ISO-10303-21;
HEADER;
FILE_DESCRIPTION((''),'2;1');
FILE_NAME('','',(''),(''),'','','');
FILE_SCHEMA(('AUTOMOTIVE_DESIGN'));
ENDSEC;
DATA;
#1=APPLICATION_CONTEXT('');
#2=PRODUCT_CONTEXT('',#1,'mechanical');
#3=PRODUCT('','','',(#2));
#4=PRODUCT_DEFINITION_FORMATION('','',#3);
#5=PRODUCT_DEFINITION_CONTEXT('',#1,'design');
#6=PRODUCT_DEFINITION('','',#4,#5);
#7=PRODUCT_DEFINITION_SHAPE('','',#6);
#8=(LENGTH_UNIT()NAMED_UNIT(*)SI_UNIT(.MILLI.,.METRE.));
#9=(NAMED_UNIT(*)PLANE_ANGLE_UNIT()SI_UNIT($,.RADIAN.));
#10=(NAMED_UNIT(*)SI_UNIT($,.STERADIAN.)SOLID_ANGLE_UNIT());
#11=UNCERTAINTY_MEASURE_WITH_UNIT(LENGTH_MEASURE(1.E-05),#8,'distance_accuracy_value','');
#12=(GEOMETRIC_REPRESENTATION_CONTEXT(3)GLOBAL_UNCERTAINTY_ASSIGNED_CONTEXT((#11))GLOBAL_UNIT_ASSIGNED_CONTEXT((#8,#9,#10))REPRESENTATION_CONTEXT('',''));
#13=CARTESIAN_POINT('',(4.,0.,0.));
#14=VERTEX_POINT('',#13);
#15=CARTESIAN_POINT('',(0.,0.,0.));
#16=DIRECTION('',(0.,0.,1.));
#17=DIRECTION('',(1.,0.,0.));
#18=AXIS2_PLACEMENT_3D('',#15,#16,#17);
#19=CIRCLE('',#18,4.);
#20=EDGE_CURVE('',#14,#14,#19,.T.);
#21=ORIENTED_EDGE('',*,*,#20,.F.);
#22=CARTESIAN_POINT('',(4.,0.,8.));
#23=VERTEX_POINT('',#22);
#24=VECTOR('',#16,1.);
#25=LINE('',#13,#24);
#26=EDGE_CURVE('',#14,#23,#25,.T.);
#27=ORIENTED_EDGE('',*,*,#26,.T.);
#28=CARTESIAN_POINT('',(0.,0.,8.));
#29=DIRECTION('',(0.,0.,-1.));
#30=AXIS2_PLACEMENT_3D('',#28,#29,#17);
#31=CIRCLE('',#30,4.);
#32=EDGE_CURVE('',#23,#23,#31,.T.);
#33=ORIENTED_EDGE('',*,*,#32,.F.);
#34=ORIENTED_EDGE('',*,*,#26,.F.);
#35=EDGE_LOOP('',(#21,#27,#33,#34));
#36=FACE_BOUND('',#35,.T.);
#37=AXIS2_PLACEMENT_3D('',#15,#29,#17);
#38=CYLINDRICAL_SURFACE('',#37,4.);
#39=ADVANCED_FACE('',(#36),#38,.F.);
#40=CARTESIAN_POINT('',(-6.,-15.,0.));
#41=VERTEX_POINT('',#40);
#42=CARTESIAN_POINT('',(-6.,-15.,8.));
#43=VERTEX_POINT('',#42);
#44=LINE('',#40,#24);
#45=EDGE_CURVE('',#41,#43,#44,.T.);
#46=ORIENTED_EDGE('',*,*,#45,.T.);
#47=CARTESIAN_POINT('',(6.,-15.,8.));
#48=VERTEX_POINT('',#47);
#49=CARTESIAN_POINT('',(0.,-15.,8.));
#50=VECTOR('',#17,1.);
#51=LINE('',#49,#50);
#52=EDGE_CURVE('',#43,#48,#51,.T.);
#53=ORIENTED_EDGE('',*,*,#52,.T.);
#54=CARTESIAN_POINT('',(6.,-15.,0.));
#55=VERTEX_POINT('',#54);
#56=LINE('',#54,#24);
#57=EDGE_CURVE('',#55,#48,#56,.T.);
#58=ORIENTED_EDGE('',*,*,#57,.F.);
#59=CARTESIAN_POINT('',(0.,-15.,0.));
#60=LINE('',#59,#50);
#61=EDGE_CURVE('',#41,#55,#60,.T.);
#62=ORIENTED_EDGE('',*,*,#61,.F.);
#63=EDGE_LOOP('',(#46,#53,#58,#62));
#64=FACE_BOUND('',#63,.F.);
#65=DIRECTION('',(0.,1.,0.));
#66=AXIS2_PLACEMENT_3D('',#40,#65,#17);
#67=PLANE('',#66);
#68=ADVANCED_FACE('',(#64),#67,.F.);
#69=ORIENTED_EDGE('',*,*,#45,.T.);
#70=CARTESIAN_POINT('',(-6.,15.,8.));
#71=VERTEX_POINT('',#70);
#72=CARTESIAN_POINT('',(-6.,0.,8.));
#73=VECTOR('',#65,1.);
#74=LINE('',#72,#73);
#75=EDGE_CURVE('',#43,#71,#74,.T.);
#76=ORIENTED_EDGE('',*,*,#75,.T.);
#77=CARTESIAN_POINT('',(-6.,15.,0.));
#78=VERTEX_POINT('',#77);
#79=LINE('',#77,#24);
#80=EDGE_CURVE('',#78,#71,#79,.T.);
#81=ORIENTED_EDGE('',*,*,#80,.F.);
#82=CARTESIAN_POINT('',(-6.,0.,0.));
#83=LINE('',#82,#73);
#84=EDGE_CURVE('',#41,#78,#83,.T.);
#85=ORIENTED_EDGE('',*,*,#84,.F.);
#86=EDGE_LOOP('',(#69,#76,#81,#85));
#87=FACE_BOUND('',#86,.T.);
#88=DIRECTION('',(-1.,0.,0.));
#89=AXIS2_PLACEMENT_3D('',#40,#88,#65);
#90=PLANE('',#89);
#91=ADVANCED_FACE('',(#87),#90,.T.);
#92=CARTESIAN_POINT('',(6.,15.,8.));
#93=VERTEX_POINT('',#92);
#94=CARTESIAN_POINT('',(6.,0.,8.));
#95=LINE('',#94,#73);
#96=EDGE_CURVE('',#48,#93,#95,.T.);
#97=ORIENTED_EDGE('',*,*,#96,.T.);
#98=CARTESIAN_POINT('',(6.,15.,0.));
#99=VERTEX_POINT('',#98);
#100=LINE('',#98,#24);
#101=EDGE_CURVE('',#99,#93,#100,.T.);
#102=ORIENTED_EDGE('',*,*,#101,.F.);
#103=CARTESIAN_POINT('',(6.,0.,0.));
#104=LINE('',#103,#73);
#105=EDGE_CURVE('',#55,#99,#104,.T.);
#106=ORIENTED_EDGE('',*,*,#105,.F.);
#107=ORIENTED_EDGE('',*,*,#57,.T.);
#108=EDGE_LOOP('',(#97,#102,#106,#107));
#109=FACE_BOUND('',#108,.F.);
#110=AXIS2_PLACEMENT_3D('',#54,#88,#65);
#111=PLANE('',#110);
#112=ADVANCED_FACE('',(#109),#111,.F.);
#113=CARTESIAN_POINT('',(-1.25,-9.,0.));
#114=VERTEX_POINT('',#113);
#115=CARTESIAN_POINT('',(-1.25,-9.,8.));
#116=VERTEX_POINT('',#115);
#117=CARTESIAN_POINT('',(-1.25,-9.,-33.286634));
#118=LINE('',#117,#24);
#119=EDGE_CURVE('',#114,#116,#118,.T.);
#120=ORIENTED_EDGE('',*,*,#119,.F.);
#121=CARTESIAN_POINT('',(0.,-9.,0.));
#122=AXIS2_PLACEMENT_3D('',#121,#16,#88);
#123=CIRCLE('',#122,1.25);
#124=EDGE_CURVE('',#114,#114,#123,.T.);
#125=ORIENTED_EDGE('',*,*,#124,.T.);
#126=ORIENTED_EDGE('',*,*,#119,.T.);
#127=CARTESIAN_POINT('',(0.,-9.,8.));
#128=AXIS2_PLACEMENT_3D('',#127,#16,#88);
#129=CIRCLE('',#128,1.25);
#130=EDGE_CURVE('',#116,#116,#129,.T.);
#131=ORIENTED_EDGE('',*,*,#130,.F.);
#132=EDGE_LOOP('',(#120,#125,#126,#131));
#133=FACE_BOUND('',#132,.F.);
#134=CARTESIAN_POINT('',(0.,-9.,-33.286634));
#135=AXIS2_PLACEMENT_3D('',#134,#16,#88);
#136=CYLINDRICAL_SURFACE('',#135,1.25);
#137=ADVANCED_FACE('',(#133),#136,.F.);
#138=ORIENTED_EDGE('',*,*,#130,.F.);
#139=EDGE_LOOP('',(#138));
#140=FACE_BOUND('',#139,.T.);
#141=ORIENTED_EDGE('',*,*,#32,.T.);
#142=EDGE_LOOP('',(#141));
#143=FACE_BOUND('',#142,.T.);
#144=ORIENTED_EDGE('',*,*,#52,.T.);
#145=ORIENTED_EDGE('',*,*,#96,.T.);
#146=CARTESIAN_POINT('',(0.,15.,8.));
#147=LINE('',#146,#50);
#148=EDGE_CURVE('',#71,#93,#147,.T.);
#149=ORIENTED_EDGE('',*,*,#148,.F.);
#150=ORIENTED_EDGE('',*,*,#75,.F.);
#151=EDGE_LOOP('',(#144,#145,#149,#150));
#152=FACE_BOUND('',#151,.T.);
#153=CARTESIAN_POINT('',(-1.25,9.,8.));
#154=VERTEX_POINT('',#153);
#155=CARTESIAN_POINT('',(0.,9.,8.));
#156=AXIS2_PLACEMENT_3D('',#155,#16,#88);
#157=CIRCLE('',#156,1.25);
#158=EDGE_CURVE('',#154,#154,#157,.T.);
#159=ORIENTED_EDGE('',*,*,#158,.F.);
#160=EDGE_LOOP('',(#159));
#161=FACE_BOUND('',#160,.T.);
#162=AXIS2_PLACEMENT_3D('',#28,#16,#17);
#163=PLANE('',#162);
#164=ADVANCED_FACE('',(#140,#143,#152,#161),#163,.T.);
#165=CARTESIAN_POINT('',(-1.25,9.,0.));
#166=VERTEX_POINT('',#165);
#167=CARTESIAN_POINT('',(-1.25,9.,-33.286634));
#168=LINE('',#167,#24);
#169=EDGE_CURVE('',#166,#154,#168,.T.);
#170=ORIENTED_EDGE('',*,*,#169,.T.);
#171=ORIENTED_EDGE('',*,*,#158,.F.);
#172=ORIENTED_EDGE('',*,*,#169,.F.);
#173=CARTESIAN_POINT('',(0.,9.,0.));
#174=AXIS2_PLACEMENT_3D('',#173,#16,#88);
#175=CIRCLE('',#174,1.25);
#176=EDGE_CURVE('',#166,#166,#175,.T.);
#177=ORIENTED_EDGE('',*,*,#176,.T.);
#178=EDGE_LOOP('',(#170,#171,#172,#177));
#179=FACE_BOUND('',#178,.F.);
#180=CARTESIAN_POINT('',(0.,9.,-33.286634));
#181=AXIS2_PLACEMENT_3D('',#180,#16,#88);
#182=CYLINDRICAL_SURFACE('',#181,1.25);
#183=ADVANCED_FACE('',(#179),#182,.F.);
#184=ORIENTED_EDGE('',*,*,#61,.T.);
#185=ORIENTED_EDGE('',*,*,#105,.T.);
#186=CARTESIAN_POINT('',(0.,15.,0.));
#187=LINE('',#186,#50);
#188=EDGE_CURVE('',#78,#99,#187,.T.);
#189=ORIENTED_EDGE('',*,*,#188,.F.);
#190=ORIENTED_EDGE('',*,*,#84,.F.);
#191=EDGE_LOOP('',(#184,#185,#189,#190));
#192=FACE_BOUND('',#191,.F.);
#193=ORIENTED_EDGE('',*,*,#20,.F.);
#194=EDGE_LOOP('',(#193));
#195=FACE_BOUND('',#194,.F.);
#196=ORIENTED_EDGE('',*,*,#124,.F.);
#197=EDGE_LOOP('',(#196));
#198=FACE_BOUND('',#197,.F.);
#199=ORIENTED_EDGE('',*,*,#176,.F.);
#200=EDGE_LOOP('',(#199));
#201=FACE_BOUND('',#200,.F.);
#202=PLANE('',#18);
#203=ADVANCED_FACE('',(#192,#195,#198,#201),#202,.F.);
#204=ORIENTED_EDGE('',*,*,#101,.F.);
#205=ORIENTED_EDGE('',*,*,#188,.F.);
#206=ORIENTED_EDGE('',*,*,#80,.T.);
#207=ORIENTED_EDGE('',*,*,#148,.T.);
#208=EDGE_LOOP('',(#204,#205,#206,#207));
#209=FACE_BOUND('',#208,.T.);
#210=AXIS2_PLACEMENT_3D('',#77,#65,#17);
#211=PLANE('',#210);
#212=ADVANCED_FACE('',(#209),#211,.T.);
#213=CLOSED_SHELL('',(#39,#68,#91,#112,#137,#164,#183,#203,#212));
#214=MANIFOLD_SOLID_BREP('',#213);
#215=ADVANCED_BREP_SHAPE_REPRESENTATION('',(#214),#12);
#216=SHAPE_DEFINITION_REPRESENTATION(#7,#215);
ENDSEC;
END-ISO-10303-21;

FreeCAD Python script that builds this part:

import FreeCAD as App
import Part
import Sketcher

V = App.Vector
Q = App.Units.Quantity

doc = App.newDocument("Part")
params = doc.addObject("Spreadsheet::Sheet", "Params")
for row, (alias, value) in enumerate([
    ("sketch1_width", "12 mm"),
    ("sketch1_height", "30 mm"),
    ("pad1_length", "8 mm"),
    ("sketch2_diameter", "8 mm"),
    ("sketch3_diameter", "2.5 mm"),
    ("hole_diameter", "2.5 mm"),
], start=1):
    params.set(f"A{row}", alias)
    params.set(f"B{row}", "=" + value)
    params.setAlias(f"B{row}", alias)

body = doc.addObject("PartDesign::Body", "Body")

# Sketch on XY plane
sketch1 = body.newObject("Sketcher::SketchObject", "Sketch")
sketch1.AttachmentSupport = (doc.getObject("XY_Plane"), [""])
sketch1.MapMode = "FlatFace"
sketch1.addGeometry([
    Part.LineSegment(V(-6, 15, 0), V(-6, -15, 0)),
    Part.LineSegment(V(-6, -15, 0), V(6, -15, 0)),
    Part.LineSegment(V(6, -15, 0), V(6, 15, 0)),
    Part.LineSegment(V(6, 15, 0), V(-6, 15, 0)),
], False)
sketch1.addConstraint([
    Sketcher.Constraint("Coincident", 0, 2, 1, 1),
    Sketcher.Constraint("Coincident", 1, 2, 2, 1),
    Sketcher.Constraint("Coincident", 2, 2, 3, 1),
    Sketcher.Constraint("Coincident", 3, 2, 0, 1),
    Sketcher.Constraint("Vertical", 0),
    Sketcher.Constraint("Horizontal", 1),
    Sketcher.Constraint("Vertical", 2),
    Sketcher.Constraint("Horizontal", 3),
    Sketcher.Constraint("Symmetric", 0, 2, 2, 2, -1, 1),
    Sketcher.Constraint("DistanceX", 1, 1, 1, 2, Q("12 mm")),
    Sketcher.Constraint("DistanceY", 0, 2, 0, 1, Q("30 mm")),
])
sketch1.setExpression("Constraints[9]", "Params.sketch1_width")
sketch1.setExpression("Constraints[10]", "Params.sketch1_height")
pad1 = body.newObject("PartDesign::Pad", "Pad")
pad1.Profile = sketch1
pad1.setExpression("Length", "Params.pad1_length")

# Sketch on XY plane
sketch2 = body.newObject("Sketcher::SketchObject", "Sketch001")
sketch2.AttachmentSupport = (doc.getObject("XY_Plane"), [""])
sketch2.MapMode = "FlatFace"
sketch2.addGeometry(Part.Circle(V(0, 0, 0), V(0, 0, 1), 4), False)
sketch2.addConstraint([
    Sketcher.Constraint("Coincident", 0, 3, -1, 1),
    Sketcher.Constraint("Diameter", 0, Q("8 mm")),
])
sketch2.setExpression("Constraints[1]", "Params.sketch2_diameter")
pocket1 = body.newObject("PartDesign::Pocket", "Pocket")
pocket1.Profile = sketch2
pocket1.Type = "ThroughAll"
pocket1.Reversed = True

# Sketch on XY plane
sketch3 = body.newObject("Sketcher::SketchObject", "Sketch002")
sketch3.AttachmentSupport = (doc.getObject("XY_Plane"), [""])
sketch3.MapMode = "FlatFace"
sketch3.addGeometry([
    Part.Circle(V(0, 9, 0), V(0, 0, 1), 1.2),
    Part.Circle(V(0, -9, 0), V(0, 0, 1), 1.2),
], False)
sketch3.addConstraint([
    Sketcher.Constraint("Equal", 0, 1),
    Sketcher.Constraint("Symmetric", 0, 3, 1, 3, -1, 1),
    Sketcher.Constraint("PointOnObject", 0, 3, -2),
    Sketcher.Constraint("Diameter", 0, Q("2.5 mm")),
    Sketcher.Constraint("DistanceY", -1, 1, 0, 3, Q("9 mm")),
])
sketch3.setExpression("Constraints[3]", "Params.sketch3_diameter")
doc.recompute()
hole = body.newObject("PartDesign::Hole", "Hole")
hole.Profile = sketch3
hole.ThreadType = "None"
hole.setExpression("Diameter", "Params.hole_diameter")
hole.DepthType = "ThroughAll"
hole.Reversed = True

doc.recompute()
